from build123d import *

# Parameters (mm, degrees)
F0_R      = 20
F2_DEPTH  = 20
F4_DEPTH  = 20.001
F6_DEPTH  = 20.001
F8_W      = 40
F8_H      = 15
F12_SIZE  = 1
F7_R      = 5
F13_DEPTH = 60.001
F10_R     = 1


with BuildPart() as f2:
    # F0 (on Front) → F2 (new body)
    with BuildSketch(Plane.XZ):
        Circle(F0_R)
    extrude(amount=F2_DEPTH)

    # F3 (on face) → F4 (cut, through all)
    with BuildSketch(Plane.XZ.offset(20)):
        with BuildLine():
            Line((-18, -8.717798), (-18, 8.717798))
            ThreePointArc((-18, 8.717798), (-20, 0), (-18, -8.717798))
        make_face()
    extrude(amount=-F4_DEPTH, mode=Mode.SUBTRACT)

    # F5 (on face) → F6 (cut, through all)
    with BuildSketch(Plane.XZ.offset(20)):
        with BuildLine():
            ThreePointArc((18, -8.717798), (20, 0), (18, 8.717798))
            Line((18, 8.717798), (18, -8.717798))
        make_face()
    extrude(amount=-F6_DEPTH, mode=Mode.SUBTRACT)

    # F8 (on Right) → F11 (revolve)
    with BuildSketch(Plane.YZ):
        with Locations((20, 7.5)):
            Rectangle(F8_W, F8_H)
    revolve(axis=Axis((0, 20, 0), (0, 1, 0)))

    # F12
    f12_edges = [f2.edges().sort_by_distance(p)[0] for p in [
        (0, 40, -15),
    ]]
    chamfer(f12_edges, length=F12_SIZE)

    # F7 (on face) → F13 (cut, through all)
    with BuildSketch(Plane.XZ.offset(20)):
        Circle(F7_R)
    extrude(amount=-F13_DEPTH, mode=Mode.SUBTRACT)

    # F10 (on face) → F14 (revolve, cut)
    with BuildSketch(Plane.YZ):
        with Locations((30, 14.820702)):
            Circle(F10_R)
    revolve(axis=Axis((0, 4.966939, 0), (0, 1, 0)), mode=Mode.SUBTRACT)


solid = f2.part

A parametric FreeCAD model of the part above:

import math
import FreeCAD as App
import Part
import Sketcher

V = App.Vector
Q = App.Units.Quantity


def edges_at(feature, points):
    """Names of the edges that pass closest to the given points."""
    edges = feature.Shape.Edges
    near = lambda p: min(range(len(edges)), key=lambda i: edges[i].distToShape(Part.Vertex(*p))[0])
    return sorted({f"Edge{near(p) + 1}" for p in points})

doc = App.newDocument("Part")
body = doc.addObject("PartDesign::Body", "Body")

sketch1 = doc.addObject("Sketcher::SketchObject", "Sketch")
body.addObject(sketch1)
sketch1.AttachmentSupport = (doc.XZ_Plane, [""])
sketch1.MapMode = "FlatFace"
sketch1.addGeometry(Part.Circle(V(0, 0, 0), V(0, 0, 1), 20), False)
sketch1.addConstraint(Sketcher.Constraint("Coincident", 0, 3, -1, 1))
sketch1.addConstraint(Sketcher.Constraint("Diameter", 0, Q("40 mm")))
pad1 = doc.addObject("PartDesign::Pad", "Pad")
body.addObject(pad1)
pad1.Profile = sketch1
pad1.Length = 20

sketch2 = doc.addObject("Sketcher::SketchObject", "Sketch001")
body.addObject(sketch2)
sketch2.AttachmentSupport = (doc.XZ_Plane, [""])
sketch2.MapMode = "FlatFace"
sketch2.AttachmentOffset = App.Placement(V(0, 0, 20), App.Rotation())
sketch2.addGeometry(Part.LineSegment(V(-18, -9, 0), V(-18, 9, 0)), False)
sketch2.addGeometry(Part.ArcOfCircle(Part.Circle(V(0, 0, 0), V(0, 0, 1), 20), math.radians(154), math.radians(206)), False)
sketch2.addConstraint(Sketcher.Constraint("Coincident", 0, 1, 1, 2))
sketch2.addConstraint(Sketcher.Constraint("Coincident", 1, 1, 0, 2))
sketch2.addConstraint(Sketcher.Constraint("Vertical", 0))
sketch2.addConstraint(Sketcher.Constraint("Coincident", 1, 3, -1, 1))
sketch2.addConstraint(Sketcher.Constraint("Radius", 1, Q("20 mm")))
sketch2.addConstraint(Sketcher.Constraint("DistanceX", 0, 1, -1, 1, Q("18 mm")))
pocket1 = doc.addObject("PartDesign::Pocket", "Pocket")
body.addObject(pocket1)
pocket1.Profile = sketch2
pocket1.Type = "ThroughAll"

sketch3 = doc.addObject("Sketcher::SketchObject", "Sketch002")
body.addObject(sketch3)
sketch3.AttachmentSupport = (doc.XZ_Plane, [""])
sketch3.MapMode = "FlatFace"
sketch3.AttachmentOffset = App.Placement(V(0, 0, 20), App.Rotation())
sketch3.addGeometry(Part.ArcOfCircle(Part.Circle(V(0, 0, 0), V(0, 0, 1), 20), math.radians(-26), math.radians(26)), False)
sketch3.addGeometry(Part.LineSegment(V(18, 9, 0), V(18, -9, 0)), False)
sketch3.addConstraint(Sketcher.Constraint("Coincident", 0, 1, 1, 2))
sketch3.addConstraint(Sketcher.Constraint("Coincident", 1, 1, 0, 2))
sketch3.addConstraint(Sketcher.Constraint("Vertical", 1))
sketch3.addConstraint(Sketcher.Constraint("Coincident", 0, 3, -1, 1))
sketch3.addConstraint(Sketcher.Constraint("Radius", 0, Q("20 mm")))
sketch3.addConstraint(Sketcher.Constraint("DistanceX", -1, 1, 0, 1, Q("18 mm")))
pocket2 = doc.addObject("PartDesign::Pocket", "Pocket001")
body.addObject(pocket2)
pocket2.Profile = sketch3
pocket2.Type = "ThroughAll"

sketch4 = doc.addObject("Sketcher::SketchObject", "Sketch003")
body.addObject(sketch4)
sketch4.AttachmentSupport = (doc.YZ_Plane, [""])
sketch4.MapMode = "FlatFace"
sketch4.addGeometry(Part.LineSegment(V(0, 15, 0), V(0, 0, 0)), False)
sketch4.addGeometry(Part.LineSegment(V(0, 0, 0), V(40, 0, 0)), False)
sketch4.addGeometry(Part.LineSegment(V(40, 0, 0), V(40, 15, 0)), False)
sketch4.addGeometry(Part.LineSegment(V(40, 15, 0), V(0, 15, 0)), False)
sketch4.addConstraint(Sketcher.Constraint("Coincident", 0, 2, 1, 1))
sketch4.addConstraint(Sketcher.Constraint("Coincident", 1, 2, 2, 1))
sketch4.addConstraint(Sketcher.Constraint("Coincident", 2, 2, 3, 1))
sketch4.addConstraint(Sketcher.Constraint("Coincident", 3, 2, 0, 1))
sketch4.addConstraint(Sketcher.Constraint("Vertical", 0))
sketch4.addConstraint(Sketcher.Constraint("Horizontal", 1))
sketch4.addConstraint(Sketcher.Constraint("Vertical", 2))
sketch4.addConstraint(Sketcher.Constraint("Horizontal", 3))
sketch4.addConstraint(Sketcher.Constraint("Coincident", 0, 2, -1, 1))
sketch4.addConstraint(Sketcher.Constraint("DistanceX", 1, 1, 1, 2, Q("40 mm")))
sketch4.addConstraint(Sketcher.Constraint("DistanceY", 0, 2, 0, 1, Q("15 mm")))
revolution = doc.addObject("PartDesign::Revolution", "Revolution")
body.addObject(revolution)
revolution.Profile = sketch4
revolution.ReferenceAxis = (sketch4, ["H_Axis"])
revolution.Angle = 360
doc.recompute()

chamfer = doc.addObject("PartDesign::Chamfer", "Chamfer")
body.addObject(chamfer)
chamfer.Base = (revolution, edges_at(revolution, [(0, 40, -15)]))
chamfer.Size = 1

sketch5 = doc.addObject("Sketcher::SketchObject", "Sketch004")
body.addObject(sketch5)
sketch5.AttachmentSupport = (doc.XZ_Plane, [""])
sketch5.MapMode = "FlatFace"
sketch5.AttachmentOffset = App.Placement(V(0, 0, 20), App.Rotation())
sketch5.addGeometry(Part.Circle(V(0, 0, 0), V(0, 0, 1), 5), False)
sketch5.addConstraint(Sketcher.Constraint("Coincident", 0, 3, -1, 1))
sketch5.addConstraint(Sketcher.Constraint("Diameter", 0, Q("10 mm")))
pocket3 = doc.addObject("PartDesign::Pocket", "Pocket002")
body.addObject(pocket3)
pocket3.Profile = sketch5
pocket3.Type = "ThroughAll"

sketch6 = doc.addObject("Sketcher::SketchObject", "Sketch005")
body.addObject(sketch6)
sketch6.AttachmentSupport = (doc.YZ_Plane, [""])
sketch6.MapMode = "FlatFace"
sketch6.addGeometry(Part.Circle(V(30, 14.8, 0), V(0, 0, 1), 1), False)
sketch6.addConstraint(Sketcher.Constraint("Diameter", 0, Q("2 mm")))
sketch6.addConstraint(Sketcher.Constraint("DistanceX", -1, 1, 0, 3, Q("30 mm")))
sketch6.addConstraint(Sketcher.Constraint("DistanceY", -1, 1, 0, 3, Q("14.820702 mm")))
groove = doc.addObject("PartDesign::Groove", "Groove")
body.addObject(groove)
groove.Profile = sketch6
groove.ReferenceAxis = (sketch6, ["H_Axis"])
groove.Angle = 360

doc.recompute()
